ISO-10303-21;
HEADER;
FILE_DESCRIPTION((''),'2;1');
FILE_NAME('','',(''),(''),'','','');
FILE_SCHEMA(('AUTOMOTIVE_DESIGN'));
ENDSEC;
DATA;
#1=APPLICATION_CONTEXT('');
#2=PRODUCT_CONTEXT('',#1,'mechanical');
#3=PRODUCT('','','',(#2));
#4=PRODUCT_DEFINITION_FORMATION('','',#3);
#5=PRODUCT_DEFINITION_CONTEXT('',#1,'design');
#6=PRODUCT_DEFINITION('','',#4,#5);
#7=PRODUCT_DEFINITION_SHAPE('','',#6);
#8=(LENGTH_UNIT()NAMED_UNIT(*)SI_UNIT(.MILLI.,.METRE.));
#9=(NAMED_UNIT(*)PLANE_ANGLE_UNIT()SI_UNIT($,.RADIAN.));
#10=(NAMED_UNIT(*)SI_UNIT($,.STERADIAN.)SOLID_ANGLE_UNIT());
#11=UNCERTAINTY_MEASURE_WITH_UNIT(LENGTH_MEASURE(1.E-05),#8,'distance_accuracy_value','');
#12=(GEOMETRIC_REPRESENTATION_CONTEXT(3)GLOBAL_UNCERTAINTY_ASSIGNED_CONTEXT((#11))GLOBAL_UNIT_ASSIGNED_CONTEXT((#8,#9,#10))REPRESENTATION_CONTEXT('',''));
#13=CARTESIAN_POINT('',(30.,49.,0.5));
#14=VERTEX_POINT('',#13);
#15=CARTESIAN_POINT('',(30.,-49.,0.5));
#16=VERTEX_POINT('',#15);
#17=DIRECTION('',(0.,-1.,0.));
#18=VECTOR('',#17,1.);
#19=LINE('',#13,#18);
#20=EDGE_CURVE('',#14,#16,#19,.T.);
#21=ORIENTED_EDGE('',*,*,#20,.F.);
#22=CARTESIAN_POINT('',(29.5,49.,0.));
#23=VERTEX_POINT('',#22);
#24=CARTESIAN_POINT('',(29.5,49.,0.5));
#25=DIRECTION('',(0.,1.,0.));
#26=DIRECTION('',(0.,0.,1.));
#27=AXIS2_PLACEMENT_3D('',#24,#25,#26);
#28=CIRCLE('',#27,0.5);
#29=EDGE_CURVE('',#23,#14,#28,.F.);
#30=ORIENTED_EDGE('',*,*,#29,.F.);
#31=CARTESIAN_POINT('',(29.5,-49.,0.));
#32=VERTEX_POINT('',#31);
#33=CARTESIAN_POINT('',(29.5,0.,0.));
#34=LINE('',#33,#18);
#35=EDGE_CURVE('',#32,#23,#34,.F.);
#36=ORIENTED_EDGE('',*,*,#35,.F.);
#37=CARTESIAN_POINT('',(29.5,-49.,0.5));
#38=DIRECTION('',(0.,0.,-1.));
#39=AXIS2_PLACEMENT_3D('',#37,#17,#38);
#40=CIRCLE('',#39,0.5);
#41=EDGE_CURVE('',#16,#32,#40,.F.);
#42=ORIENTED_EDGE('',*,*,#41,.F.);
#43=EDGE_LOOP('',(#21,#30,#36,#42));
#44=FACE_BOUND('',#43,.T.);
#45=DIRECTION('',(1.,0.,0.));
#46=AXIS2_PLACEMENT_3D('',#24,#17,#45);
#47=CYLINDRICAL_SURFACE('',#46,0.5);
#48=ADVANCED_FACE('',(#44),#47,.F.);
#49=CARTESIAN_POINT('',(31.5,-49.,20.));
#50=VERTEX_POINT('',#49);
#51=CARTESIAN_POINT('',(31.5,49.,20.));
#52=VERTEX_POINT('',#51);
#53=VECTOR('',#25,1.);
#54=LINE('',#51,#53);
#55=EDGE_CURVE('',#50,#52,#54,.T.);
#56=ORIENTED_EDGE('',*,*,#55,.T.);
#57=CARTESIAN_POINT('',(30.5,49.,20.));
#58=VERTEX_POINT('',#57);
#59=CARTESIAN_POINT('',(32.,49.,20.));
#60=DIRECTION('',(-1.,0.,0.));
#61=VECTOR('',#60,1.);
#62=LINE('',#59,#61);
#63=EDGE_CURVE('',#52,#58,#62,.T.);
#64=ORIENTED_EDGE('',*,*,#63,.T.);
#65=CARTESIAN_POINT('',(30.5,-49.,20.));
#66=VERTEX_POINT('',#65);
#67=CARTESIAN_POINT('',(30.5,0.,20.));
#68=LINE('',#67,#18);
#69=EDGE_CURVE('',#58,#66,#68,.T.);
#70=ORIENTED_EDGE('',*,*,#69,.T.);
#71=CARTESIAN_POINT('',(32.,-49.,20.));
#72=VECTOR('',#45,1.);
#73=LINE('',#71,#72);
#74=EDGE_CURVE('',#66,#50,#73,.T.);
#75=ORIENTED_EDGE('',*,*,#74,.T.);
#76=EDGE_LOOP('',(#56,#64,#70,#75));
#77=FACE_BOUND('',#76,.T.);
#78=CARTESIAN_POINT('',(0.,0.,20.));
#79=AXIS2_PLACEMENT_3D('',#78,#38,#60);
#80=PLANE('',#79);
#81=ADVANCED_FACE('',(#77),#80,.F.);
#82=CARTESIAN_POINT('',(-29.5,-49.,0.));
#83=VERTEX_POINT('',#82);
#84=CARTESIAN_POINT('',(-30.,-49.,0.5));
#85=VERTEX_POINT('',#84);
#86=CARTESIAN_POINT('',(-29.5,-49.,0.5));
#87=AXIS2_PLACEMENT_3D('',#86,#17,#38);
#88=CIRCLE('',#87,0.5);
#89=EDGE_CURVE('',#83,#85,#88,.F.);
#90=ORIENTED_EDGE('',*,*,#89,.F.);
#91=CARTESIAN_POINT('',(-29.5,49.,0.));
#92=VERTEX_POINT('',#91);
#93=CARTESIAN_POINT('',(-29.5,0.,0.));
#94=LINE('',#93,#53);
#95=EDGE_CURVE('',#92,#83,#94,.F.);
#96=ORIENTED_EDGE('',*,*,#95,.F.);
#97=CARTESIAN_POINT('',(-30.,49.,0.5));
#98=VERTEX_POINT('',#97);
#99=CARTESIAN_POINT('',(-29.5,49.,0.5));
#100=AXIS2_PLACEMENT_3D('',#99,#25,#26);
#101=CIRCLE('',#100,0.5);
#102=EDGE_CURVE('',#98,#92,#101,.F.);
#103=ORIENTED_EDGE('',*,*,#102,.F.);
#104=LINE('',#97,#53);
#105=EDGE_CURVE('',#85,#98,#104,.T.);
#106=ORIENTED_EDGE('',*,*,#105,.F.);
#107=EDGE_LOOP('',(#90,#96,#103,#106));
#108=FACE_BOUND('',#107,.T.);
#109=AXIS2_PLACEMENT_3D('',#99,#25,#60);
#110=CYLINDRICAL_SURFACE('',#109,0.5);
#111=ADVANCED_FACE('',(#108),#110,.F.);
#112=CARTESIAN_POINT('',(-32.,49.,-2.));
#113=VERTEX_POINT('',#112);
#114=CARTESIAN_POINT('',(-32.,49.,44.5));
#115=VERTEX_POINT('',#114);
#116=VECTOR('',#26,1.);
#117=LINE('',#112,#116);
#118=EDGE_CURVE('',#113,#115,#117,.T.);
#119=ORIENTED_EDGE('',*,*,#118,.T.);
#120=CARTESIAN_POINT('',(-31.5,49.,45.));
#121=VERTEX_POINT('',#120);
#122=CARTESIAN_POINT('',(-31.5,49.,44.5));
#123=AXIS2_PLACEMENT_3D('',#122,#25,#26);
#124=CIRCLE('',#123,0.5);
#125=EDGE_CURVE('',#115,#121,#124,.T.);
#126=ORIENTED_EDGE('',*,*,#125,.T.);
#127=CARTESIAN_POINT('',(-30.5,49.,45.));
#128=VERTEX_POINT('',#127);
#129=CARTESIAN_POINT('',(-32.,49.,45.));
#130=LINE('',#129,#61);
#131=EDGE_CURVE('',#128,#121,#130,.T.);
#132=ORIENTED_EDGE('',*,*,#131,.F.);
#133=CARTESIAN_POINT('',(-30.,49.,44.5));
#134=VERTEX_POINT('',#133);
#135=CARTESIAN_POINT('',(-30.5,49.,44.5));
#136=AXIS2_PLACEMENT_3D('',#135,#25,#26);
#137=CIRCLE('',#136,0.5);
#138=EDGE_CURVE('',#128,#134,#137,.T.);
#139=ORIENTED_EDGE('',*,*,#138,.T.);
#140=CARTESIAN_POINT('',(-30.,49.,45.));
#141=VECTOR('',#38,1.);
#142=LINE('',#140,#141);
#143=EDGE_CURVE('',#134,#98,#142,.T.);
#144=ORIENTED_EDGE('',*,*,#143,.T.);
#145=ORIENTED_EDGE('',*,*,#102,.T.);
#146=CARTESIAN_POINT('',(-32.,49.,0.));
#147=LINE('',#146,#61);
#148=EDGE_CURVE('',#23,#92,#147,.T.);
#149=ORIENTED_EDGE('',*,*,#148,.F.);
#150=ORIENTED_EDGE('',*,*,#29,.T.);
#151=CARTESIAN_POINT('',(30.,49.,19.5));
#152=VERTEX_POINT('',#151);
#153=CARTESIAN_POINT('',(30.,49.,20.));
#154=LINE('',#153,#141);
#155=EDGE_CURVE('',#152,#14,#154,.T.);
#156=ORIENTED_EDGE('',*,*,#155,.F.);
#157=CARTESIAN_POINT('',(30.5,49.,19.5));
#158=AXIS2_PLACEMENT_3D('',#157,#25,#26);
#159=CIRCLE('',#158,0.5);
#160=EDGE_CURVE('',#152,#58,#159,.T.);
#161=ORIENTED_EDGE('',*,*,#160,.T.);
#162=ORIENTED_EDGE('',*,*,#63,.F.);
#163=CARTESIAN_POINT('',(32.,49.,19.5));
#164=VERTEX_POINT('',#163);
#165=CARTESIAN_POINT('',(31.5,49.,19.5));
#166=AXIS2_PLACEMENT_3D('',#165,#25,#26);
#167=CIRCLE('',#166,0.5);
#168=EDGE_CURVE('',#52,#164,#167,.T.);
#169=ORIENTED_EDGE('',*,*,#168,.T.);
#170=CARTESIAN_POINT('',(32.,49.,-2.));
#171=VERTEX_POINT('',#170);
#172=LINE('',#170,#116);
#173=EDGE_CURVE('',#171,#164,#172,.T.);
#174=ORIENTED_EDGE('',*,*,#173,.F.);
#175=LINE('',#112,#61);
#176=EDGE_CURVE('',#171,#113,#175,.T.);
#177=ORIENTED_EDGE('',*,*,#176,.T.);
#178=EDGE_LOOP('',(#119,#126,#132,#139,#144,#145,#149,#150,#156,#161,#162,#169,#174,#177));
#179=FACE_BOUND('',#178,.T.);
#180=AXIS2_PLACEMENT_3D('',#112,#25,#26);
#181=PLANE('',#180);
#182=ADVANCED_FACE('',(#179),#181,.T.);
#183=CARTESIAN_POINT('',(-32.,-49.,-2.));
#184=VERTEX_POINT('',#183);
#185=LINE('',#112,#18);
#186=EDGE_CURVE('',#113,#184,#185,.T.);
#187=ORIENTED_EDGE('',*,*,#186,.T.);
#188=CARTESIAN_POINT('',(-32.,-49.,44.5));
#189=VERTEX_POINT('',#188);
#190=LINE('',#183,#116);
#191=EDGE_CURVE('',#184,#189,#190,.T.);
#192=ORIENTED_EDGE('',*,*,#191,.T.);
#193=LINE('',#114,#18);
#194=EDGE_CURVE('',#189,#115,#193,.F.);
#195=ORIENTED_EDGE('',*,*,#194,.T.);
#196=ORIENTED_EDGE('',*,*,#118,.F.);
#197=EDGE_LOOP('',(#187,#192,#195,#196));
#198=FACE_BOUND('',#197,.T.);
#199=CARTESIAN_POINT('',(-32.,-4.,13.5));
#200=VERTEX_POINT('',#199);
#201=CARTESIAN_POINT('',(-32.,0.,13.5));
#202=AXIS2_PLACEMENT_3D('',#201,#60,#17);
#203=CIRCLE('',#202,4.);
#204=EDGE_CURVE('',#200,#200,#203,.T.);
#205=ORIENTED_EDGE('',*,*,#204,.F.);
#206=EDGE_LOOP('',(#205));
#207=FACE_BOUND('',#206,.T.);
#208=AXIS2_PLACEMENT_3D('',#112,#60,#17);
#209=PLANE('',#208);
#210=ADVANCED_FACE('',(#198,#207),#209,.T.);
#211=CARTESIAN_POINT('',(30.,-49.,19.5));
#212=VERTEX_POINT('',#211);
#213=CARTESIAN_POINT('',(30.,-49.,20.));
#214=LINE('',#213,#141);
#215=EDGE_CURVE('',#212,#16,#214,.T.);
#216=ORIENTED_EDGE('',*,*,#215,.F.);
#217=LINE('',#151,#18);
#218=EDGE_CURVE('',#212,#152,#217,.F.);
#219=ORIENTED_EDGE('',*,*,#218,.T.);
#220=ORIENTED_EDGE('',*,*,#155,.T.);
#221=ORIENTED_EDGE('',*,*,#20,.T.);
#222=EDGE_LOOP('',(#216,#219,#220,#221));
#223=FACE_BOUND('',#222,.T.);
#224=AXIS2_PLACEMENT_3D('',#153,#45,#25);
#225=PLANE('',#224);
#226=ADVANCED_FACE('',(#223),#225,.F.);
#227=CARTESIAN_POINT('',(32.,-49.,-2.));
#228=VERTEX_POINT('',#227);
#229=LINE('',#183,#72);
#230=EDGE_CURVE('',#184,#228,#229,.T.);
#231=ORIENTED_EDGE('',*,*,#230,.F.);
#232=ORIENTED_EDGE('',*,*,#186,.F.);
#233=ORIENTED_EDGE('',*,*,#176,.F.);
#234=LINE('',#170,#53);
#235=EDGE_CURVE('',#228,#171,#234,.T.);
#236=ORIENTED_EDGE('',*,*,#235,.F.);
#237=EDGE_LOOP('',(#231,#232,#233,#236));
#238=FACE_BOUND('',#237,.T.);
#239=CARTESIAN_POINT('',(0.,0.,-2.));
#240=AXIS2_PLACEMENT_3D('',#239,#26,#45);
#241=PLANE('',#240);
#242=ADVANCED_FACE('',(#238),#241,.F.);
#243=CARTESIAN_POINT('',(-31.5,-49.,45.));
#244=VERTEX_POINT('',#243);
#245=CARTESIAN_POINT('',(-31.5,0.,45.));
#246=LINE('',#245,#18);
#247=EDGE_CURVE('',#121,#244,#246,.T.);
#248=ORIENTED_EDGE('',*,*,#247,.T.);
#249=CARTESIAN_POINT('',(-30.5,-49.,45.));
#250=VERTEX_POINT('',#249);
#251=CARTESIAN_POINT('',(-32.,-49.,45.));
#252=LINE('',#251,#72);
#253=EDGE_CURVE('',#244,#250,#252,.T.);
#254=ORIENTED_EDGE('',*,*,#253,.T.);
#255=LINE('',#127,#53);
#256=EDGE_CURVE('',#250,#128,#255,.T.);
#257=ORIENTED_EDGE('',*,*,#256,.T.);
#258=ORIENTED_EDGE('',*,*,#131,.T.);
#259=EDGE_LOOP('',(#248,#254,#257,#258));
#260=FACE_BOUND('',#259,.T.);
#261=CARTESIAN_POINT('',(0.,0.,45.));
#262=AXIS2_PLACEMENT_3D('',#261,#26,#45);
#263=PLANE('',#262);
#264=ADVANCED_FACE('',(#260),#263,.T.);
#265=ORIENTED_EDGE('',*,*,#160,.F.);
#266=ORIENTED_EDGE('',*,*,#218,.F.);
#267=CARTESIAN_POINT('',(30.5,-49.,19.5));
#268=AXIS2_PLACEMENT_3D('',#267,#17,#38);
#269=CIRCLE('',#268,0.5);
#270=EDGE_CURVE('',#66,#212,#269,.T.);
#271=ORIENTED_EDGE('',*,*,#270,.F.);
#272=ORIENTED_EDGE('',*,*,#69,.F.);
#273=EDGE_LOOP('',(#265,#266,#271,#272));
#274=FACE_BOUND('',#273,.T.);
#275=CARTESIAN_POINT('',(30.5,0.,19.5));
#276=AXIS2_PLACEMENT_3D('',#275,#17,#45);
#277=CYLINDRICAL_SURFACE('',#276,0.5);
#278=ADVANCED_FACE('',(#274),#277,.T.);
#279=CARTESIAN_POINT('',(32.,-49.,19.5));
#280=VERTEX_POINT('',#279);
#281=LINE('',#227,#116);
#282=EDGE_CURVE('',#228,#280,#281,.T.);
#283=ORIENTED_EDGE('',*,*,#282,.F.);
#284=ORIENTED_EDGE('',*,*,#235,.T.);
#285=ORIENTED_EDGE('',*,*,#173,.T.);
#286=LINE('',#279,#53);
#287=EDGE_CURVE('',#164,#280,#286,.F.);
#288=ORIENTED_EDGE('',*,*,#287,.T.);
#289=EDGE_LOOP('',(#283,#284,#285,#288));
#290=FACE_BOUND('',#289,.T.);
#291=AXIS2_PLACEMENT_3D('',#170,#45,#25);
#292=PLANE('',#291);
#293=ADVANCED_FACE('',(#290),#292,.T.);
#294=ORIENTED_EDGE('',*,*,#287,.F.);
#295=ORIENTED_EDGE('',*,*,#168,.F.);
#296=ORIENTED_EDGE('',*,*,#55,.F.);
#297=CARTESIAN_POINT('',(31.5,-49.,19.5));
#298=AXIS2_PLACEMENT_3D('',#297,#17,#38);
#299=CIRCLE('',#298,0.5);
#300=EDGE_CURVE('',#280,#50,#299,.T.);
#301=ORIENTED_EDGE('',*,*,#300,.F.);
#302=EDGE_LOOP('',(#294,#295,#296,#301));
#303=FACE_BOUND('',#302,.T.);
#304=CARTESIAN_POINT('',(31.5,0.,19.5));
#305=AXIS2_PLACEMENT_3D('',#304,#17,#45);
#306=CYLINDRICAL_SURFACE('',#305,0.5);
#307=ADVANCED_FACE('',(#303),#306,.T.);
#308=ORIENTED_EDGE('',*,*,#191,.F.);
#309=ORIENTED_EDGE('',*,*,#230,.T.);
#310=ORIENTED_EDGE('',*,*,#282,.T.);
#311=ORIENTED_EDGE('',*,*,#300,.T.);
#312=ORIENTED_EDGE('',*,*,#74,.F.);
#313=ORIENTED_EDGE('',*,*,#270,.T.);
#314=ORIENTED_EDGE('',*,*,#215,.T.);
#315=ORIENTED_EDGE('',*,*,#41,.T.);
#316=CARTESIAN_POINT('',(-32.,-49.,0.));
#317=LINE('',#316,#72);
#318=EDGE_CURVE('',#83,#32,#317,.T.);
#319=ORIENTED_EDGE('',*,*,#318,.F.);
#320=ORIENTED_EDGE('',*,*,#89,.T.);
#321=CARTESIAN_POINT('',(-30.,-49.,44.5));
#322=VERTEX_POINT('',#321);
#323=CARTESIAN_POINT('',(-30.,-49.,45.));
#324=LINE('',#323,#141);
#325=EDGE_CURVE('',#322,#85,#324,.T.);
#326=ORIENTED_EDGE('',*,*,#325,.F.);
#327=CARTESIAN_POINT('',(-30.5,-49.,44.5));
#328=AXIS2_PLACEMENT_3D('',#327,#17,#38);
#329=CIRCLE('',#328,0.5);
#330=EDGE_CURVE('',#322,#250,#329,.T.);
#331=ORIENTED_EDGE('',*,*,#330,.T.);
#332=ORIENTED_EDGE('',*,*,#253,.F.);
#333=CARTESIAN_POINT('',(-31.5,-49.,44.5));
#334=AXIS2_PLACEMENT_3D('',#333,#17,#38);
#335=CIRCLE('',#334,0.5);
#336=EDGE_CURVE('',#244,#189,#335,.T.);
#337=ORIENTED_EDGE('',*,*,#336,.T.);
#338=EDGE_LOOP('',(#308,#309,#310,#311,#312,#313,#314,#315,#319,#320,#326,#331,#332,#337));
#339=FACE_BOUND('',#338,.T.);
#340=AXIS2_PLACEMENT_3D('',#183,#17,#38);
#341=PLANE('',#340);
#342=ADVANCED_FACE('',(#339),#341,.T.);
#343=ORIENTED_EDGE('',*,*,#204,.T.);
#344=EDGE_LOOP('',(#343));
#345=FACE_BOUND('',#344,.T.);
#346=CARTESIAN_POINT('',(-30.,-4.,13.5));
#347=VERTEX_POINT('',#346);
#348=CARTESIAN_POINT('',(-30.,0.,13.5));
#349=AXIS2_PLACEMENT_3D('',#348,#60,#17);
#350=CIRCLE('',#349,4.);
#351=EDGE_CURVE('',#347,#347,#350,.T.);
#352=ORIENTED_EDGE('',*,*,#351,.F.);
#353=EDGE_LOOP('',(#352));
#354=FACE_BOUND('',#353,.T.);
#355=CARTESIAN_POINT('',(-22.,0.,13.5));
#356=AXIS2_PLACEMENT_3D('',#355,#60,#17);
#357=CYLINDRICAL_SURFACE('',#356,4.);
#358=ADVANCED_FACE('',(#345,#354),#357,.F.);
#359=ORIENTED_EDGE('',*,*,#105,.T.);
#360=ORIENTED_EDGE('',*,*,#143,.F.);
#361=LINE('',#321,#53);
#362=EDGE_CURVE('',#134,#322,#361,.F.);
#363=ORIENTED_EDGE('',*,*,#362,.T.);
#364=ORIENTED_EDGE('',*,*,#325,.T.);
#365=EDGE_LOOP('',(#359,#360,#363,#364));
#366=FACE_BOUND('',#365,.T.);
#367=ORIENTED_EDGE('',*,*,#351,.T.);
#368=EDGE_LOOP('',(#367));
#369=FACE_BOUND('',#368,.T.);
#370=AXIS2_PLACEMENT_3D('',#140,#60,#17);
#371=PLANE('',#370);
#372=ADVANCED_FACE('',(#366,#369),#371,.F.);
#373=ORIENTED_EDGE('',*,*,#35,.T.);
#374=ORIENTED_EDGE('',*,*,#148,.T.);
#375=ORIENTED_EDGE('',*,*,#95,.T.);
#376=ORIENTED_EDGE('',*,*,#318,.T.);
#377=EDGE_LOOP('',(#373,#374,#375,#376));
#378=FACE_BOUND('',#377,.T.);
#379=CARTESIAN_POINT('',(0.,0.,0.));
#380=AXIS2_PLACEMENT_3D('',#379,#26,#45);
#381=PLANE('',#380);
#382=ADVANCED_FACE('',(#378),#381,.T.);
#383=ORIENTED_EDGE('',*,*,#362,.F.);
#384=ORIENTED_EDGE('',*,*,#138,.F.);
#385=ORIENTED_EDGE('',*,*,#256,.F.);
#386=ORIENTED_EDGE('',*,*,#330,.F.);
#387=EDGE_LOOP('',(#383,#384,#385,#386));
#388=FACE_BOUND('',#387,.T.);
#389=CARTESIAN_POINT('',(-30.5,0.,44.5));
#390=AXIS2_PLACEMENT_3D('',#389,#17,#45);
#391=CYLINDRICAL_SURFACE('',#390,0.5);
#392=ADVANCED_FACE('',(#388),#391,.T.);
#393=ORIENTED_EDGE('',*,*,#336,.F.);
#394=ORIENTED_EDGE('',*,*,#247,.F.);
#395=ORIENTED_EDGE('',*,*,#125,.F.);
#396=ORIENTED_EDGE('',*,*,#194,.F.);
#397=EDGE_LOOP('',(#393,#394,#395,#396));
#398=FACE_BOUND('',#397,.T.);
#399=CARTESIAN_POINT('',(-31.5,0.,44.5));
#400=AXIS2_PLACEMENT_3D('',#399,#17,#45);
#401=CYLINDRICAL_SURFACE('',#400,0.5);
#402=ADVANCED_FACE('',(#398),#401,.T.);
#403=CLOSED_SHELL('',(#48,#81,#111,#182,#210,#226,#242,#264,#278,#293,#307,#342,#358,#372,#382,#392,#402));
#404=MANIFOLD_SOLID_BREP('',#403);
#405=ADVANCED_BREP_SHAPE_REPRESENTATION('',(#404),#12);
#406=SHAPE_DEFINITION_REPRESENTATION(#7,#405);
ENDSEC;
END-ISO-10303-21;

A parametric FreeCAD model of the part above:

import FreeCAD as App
import Part
import Sketcher

V = App.Vector


def edges_at(feature, points):
    """Names of the edges that pass closest to the given points."""
    edges = feature.Shape.Edges
    near = lambda p: min(range(len(edges)), key=lambda i: edges[i].distToShape(Part.Vertex(*p))[0])
    return sorted({f"Edge{near(p) + 1}" for p in points})

doc = App.newDocument("Part")
params = doc.addObject("Spreadsheet::Sheet", "Params")
for row, (alias, value) in enumerate([
    ("sketch1_width", "64 mm"),
    ("sketch1_height", "98 mm"),
    ("pad1_length", "2 mm"),
    ("sketch2_width", "2 mm"),
    ("sketch2_height", "98 mm"),
    ("pad2_length", "45 mm"),
    ("sketch3_width", "2 mm"),
    ("sketch3_height", "98 mm"),
    ("pad3_length", "20 mm"),
    ("fillet_radius", "0.5 mm"),
    ("sketch4_diameter", "8 mm"),
    ("pocket1_length", "10 mm"),
], start=1):
    params.set(f"A{row}", alias)
    params.set(f"B{row}", "=" + value)
    params.setAlias(f"B{row}", alias)

body = doc.addObject("PartDesign::Body", "Body")

# Sketch on XY plane
sketch1 = body.newObject("Sketcher::SketchObject", "Sketch")
sketch1.AttachmentSupport = (doc.getObject("XY_Plane"), [""])
sketch1.MapMode = "FlatFace"
sketch1.addGeometry(Part.LineSegment(V(-32, 49, 0), V(-32, -49, 0)), False)
sketch1.addGeometry(Part.LineSegment(V(-32, -49, 0), V(32, -49, 0)), False)
sketch1.addGeometry(Part.LineSegment(V(32, -49, 0), V(32, 49, 0)), False)
sketch1.addGeometry(Part.LineSegment(V(32, 49, 0), V(-32, 49, 0)), False)
sketch1.addConstraint(Sketcher.Constraint("Coincident", 0, 2, 1, 1))
sketch1.addConstraint(Sketcher.Constraint("Coincident", 1, 2, 2, 1))
sketch1.addConstraint(Sketcher.Constraint("Coincident", 2, 2, 3, 1))
sketch1.addConstraint(Sketcher.Constraint("Coincident", 3, 2, 0, 1))
sketch1.addConstraint(Sketcher.Constraint("Vertical", 0))
sketch1.addConstraint(Sketcher.Constraint("Horizontal", 1))
sketch1.addConstraint(Sketcher.Constraint("Vertical", 2))
sketch1.addConstraint(Sketcher.Constraint("Horizontal", 3))
sketch1.addConstraint(Sketcher.Constraint("Symmetric", 0, 2, 2, 2, -1, 1))
sketch1.addConstraint(Sketcher.Constraint("DistanceX", 1, 1, 1, 2, 64.0))
sketch1.addConstraint(Sketcher.Constraint("DistanceY", 0, 2, 0, 1, 98.0))
sketch1.setExpression("Constraints[9]", "Params.sketch1_width")
sketch1.setExpression("Constraints[10]", "Params.sketch1_height")
pad1 = body.newObject("PartDesign::Pad", "Pad")
pad1.Profile = sketch1
pad1.setExpression("Length", "Params.pad1_length")
pad1.Reversed = True

# Sketch on XY plane
sketch2 = body.newObject("Sketcher::SketchObject", "Sketch001")
sketch2.AttachmentSupport = (doc.getObject("XY_Plane"), [""])
sketch2.MapMode = "FlatFace"
sketch2.addGeometry(Part.LineSegment(V(-32, 49, 0), V(-32, -49, 0)), False)
sketch2.addGeometry(Part.LineSegment(V(-32, -49, 0), V(-30, -49, 0)), False)
sketch2.addGeometry(Part.LineSegment(V(-30, -49, 0), V(-30, 49, 0)), False)
sketch2.addGeometry(Part.LineSegment(V(-30, 49, 0), V(-32, 49, 0)), False)
sketch2.addConstraint(Sketcher.Constraint("Coincident", 0, 2, 1, 1))
sketch2.addConstraint(Sketcher.Constraint("Coincident", 1, 2, 2, 1))
sketch2.addConstraint(Sketcher.Constraint("Coincident", 2, 2, 3, 1))
sketch2.addConstraint(Sketcher.Constraint("Coincident", 3, 2, 0, 1))
sketch2.addConstraint(Sketcher.Constraint("Vertical", 0))
sketch2.addConstraint(Sketcher.Constraint("Horizontal", 1))
sketch2.addConstraint(Sketcher.Constraint("Vertical", 2))
sketch2.addConstraint(Sketcher.Constraint("Horizontal", 3))
sketch2.addConstraint(Sketcher.Constraint("DistanceX", 1, 1, 1, 2, 2.0))
sketch2.addConstraint(Sketcher.Constraint("DistanceY", 0, 2, 0, 1, 98.0))
sketch2.addConstraint(Sketcher.Constraint("DistanceX", 0, 2, -1, 1, 32.0))
sketch2.addConstraint(Sketcher.Constraint("DistanceY", 0, 2, -1, 1, 49.0))
sketch2.setExpression("Constraints[8]", "Params.sketch2_width")
sketch2.setExpression("Constraints[9]", "Params.sketch2_height")
pad2 = body.newObject("PartDesign::Pad", "Pad001")
pad2.Profile = sketch2
pad2.setExpression("Length", "Params.pad2_length")

# Sketch on XY plane
sketch3 = body.newObject("Sketcher::SketchObject", "Sketch002")
sketch3.AttachmentSupport = (doc.getObject("XY_Plane"), [""])
sketch3.MapMode = "FlatFace"
sketch3.addGeometry(Part.LineSegment(V(30, 49, 0), V(30, -49, 0)), False)
sketch3.addGeometry(Part.LineSegment(V(30, -49, 0), V(32, -49, 0)), False)
sketch3.addGeometry(Part.LineSegment(V(32, -49, 0), V(32, 49, 0)), False)
sketch3.addGeometry(Part.LineSegment(V(32, 49, 0), V(30, 49, 0)), False)
sketch3.addConstraint(Sketcher.Constraint("Coincident", 0, 2, 1, 1))
sketch3.addConstraint(Sketcher.Constraint("Coincident", 1, 2, 2, 1))
sketch3.addConstraint(Sketcher.Constraint("Coincident", 2, 2, 3, 1))
sketch3.addConstraint(Sketcher.Constraint("Coincident", 3, 2, 0, 1))
sketch3.addConstraint(Sketcher.Constraint("Vertical", 0))
sketch3.addConstraint(Sketcher.Constraint("Horizontal", 1))
sketch3.addConstraint(Sketcher.Constraint("Vertical", 2))
sketch3.addConstraint(Sketcher.Constraint("Horizontal", 3))
sketch3.addConstraint(Sketcher.Constraint("DistanceX", 1, 1, 1, 2, 2.0))
sketch3.addConstraint(Sketcher.Constraint("DistanceY", 0, 2, 0, 1, 98.0))
sketch3.addConstraint(Sketcher.Constraint("DistanceX", -1, 1, 0, 2, 30.0))
sketch3.addConstraint(Sketcher.Constraint("DistanceY", 0, 2, -1, 1, 49.0))
sketch3.setExpression("Constraints[8]", "Params.sketch3_width")
sketch3.setExpression("Constraints[9]", "Params.sketch3_height")
pad3 = body.newObject("PartDesign::Pad", "Pad002")
pad3.Profile = sketch3
pad3.setExpression("Length", "Params.pad3_length")
doc.recompute()

fillet = body.newObject("PartDesign::Fillet", "Fillet")
fillet.Base = (pad3, edges_at(pad3, [
    (-30, 0, 0),
    (-32, 0, 45),
    (-30, 0, 45),
    (30, 0, 0),
    (32, 0, 20),
    (30, 0, 20),
]))
fillet.setExpression("Radius", "Params.fillet_radius")

# Sketch on YZ plane
sketch4 = body.newObject("Sketcher::SketchObject", "Sketch003")
sketch4.AttachmentSupport = (doc.getObject("YZ_Plane"), [""])
sketch4.MapMode = "FlatFace"
sketch4.AttachmentOffset = App.Placement(V(0, 0, -32), App.Rotation())
sketch4.addGeometry(Part.Circle(V(0, 13.5, 0), V(0, 0, 1), 4), False)
sketch4.addConstraint(Sketcher.Constraint("PointOnObject", 0, 3, -2))
sketch4.addConstraint(Sketcher.Constraint("Diameter", 0, 8.0))
sketch4.addConstraint(Sketcher.Constraint("DistanceY", -1, 1, 0, 3, 13.5))
sketch4.setExpression("Constraints[1]", "Params.sketch4_diameter")
pocket1 = body.newObject("PartDesign::Pocket", "Pocket")
pocket1.Profile = sketch4
pocket1.setExpression("Length", "Params.pocket1_length")
pocket1.Reversed = True

doc.recompute()
